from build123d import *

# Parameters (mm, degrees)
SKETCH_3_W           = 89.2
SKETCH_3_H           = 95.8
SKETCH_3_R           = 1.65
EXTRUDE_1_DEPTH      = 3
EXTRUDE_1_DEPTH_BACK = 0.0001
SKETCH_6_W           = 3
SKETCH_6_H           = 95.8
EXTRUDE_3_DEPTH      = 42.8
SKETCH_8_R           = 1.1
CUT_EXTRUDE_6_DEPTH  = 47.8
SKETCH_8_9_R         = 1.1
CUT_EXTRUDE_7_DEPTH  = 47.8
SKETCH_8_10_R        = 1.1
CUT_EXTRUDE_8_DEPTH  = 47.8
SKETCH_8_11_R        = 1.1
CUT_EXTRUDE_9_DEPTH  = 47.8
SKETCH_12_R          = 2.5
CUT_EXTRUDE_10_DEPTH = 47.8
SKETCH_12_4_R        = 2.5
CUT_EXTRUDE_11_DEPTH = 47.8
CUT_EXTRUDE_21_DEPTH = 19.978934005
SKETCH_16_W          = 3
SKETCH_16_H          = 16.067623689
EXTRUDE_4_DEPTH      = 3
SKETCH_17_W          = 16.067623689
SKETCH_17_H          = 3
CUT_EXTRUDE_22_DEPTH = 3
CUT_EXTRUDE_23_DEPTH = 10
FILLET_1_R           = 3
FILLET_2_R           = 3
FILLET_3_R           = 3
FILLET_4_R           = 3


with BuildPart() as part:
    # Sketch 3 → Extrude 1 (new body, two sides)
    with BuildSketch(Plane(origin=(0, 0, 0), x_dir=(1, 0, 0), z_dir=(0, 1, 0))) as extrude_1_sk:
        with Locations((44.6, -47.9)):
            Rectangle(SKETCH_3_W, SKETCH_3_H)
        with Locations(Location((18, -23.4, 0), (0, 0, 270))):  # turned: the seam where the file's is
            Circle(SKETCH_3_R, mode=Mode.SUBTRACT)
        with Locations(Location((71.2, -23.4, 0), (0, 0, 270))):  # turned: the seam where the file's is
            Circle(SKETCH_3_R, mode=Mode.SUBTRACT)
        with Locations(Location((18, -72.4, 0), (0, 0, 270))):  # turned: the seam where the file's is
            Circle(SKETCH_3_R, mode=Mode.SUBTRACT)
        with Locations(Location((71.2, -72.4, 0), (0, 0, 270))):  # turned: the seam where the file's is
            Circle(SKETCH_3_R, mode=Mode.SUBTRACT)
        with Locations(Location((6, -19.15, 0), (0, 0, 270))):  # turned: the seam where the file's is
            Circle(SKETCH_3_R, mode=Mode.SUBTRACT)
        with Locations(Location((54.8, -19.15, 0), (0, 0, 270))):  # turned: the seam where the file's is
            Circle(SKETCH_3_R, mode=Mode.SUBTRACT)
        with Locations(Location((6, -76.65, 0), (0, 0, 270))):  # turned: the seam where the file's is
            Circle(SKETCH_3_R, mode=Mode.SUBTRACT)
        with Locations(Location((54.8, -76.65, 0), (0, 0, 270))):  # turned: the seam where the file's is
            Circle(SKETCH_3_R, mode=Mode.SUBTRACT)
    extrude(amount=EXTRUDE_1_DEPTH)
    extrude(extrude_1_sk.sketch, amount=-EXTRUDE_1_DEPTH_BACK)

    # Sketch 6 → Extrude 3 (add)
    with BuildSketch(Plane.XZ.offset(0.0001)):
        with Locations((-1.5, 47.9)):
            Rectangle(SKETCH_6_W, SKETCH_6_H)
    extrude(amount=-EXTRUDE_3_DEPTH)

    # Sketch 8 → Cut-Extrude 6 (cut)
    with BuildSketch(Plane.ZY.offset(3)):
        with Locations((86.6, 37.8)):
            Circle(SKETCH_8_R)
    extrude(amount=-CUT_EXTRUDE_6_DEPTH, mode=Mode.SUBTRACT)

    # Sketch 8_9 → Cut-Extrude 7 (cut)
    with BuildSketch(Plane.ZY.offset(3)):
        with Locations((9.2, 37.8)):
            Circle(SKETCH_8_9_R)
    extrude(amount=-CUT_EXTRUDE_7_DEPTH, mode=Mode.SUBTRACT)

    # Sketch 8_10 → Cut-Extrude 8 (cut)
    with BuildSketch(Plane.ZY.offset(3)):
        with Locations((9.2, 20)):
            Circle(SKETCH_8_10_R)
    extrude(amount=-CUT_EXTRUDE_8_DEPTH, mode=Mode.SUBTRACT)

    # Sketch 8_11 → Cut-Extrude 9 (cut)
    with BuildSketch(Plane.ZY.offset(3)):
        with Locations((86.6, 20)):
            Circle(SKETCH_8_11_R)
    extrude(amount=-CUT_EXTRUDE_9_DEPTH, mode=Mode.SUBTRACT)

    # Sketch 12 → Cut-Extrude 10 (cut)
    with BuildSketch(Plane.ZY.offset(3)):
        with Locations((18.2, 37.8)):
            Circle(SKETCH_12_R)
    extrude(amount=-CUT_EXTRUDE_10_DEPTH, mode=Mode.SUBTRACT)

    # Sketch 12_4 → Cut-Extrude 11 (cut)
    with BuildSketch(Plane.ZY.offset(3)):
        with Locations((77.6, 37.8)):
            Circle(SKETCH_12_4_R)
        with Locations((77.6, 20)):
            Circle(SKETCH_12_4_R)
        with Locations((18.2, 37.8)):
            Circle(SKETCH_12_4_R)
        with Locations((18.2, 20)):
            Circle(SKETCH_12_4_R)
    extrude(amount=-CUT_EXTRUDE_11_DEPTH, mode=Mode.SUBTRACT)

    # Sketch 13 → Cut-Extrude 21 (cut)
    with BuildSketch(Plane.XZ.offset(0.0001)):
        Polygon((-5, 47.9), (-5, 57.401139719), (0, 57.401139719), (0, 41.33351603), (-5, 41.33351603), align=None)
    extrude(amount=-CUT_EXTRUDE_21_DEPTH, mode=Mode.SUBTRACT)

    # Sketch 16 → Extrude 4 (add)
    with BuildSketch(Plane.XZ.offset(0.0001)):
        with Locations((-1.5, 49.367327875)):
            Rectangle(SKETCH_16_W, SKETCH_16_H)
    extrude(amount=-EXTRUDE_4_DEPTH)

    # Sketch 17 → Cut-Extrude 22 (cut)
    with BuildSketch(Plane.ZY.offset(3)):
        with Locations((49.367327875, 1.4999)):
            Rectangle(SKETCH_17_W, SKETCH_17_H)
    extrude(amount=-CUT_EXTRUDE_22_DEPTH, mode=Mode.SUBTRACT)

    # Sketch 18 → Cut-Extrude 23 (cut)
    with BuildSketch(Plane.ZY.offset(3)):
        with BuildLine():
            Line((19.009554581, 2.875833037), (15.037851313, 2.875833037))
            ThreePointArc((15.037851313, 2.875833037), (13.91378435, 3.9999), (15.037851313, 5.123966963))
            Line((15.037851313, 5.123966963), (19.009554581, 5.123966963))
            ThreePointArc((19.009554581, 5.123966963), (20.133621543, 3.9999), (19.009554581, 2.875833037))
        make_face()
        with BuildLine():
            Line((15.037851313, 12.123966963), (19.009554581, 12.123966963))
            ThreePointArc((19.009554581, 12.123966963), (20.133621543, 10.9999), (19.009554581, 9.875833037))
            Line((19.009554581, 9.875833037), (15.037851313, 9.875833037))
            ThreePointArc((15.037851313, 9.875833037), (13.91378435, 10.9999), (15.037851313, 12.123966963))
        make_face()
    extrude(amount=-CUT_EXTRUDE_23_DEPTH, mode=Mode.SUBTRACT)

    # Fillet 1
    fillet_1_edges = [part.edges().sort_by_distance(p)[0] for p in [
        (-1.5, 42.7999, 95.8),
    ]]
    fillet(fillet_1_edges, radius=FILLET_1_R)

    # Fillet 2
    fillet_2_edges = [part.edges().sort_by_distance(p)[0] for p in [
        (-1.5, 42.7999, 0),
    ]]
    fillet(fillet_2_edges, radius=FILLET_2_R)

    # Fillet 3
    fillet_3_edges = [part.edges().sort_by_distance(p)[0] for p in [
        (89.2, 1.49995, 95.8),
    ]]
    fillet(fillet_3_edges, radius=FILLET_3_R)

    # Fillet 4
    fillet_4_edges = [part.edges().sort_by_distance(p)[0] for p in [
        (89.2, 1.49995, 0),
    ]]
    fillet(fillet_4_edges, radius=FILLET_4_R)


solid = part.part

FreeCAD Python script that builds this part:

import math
import FreeCAD as App
import Part
import Sketcher

V = App.Vector


def edges_at(feature, points):
    """Names of the edges that pass closest to the given points."""
    edges = feature.Shape.Edges
    near = lambda p: min(range(len(edges)), key=lambda i: edges[i].distToShape(Part.Vertex(*p))[0])
    return sorted({f"Edge{near(p) + 1}" for p in points})


def add_polygon(sketch, points):
    """Adds a closed chain of lines whose ends are joined by coincident constraints."""
    first, n = sketch.GeometryCount, len(points)
    for a, b in zip(points, points[1:] + points[:1]):
        sketch.addGeometry(Part.LineSegment(App.Vector(*a, 0), App.Vector(*b, 0)), False)
    for i in range(n):
        sketch.addConstraint(Sketcher.Constraint("Coincident", first + i, 2, first + (i + 1) % n, 1))

doc = App.newDocument("Part")
body = doc.addObject("PartDesign::Body", "Body")

# Sketch on XZ plane
sketch1 = body.newObject("Sketcher::SketchObject", "Sketch")
sketch1.AttachmentSupport = (doc.getObject("XZ_Plane"), [""])
sketch1.MapMode = "FlatFace"
add_polygon(sketch1, [(0, 0), (0, 95.8), (89.2, 95.8), (89.2, 0)])  # lines 0-3
sketch1.addGeometry(Part.Circle(V(6, 76.65, 0), V(0, 0, 1), 1.65), False)  # 4
sketch1.addGeometry(Part.Circle(V(18, 72.4, 0), V(0, 0, 1), 1.65), False)  # 5
sketch1.addGeometry(Part.Circle(V(54.8, 76.65, 0), V(0, 0, 1), 1.65), False)  # 6
sketch1.addGeometry(Part.Circle(V(71.2, 72.4, 0), V(0, 0, 1), 1.65), False)  # 7
sketch1.addGeometry(Part.Circle(V(6, 19.15, 0), V(0, 0, 1), 1.65), False)  # 8
sketch1.addGeometry(Part.Circle(V(18, 23.4, 0), V(0, 0, 1), 1.65), False)  # 9
sketch1.addGeometry(Part.Circle(V(54.8, 19.15, 0), V(0, 0, 1), 1.65), False)  # 10
sketch1.addGeometry(Part.Circle(V(71.2, 23.4, 0), V(0, 0, 1), 1.65), False)  # 11
sketch1.addConstraint(Sketcher.Constraint("Vertical", 0))
sketch1.addConstraint(Sketcher.Constraint("Horizontal", 1))
sketch1.addConstraint(Sketcher.Constraint("Vertical", 2))
sketch1.addConstraint(Sketcher.Constraint("Horizontal", 3))
sketch1.addConstraint(Sketcher.Constraint("Coincident", 3, 2, -1, 1))
sketch1.addConstraint(Sketcher.Constraint("Equal", 4, 5))
sketch1.addConstraint(Sketcher.Constraint("Equal", 5, 6))
sketch1.addConstraint(Sketcher.Constraint("Equal", 6, 7))
sketch1.addConstraint(Sketcher.Constraint("Equal", 7, 8))
sketch1.addConstraint(Sketcher.Constraint("Equal", 8, 9))
sketch1.addConstraint(Sketcher.Constraint("Equal", 9, 10))
sketch1.addConstraint(Sketcher.Constraint("Equal", 10, 11))
sketch1.addConstraint(Sketcher.Constraint("Horizontal", 4, 3, 6, 3))
sketch1.addConstraint(Sketcher.Constraint("Horizontal", 5, 3, 7, 3))
sketch1.addConstraint(Sketcher.Constraint("Horizontal", 8, 3, 10, 3))
sketch1.addConstraint(Sketcher.Constraint("Horizontal", 9, 3, 11, 3))
sketch1.addConstraint(Sketcher.Constraint("Vertical", 4, 3, 8, 3))
sketch1.addConstraint(Sketcher.Constraint("Vertical", 5, 3, 9, 3))
sketch1.addConstraint(Sketcher.Constraint("Vertical", 6, 3, 10, 3))
sketch1.addConstraint(Sketcher.Constraint("Vertical", 7, 3, 11, 3))
sketch1.addConstraint(Sketcher.Constraint("Diameter", 4, 3.3))
sketch1.addConstraint(Sketcher.Constraint("DistanceX", 1, 1, 1, 2, 89.2))
sketch1.addConstraint(Sketcher.Constraint("DistanceY", 0, 1, 0, 2, 95.8))
sketch1.addConstraint(Sketcher.Constraint("DistanceX", -1, 1, 4, 3, 6.0))
sketch1.addConstraint(Sketcher.Constraint("DistanceX", -1, 1, 5, 3, 18.0))
sketch1.addConstraint(Sketcher.Constraint("DistanceY", 9, 3, 5, 3, 49.0))
sketch1.addConstraint(Sketcher.Constraint("DistanceX", 7, 3, 1, 2, 18.0))
sketch1.addConstraint(Sketcher.Constraint("DistanceY", -1, 1, 5, 3, 72.4))
sketch1.addConstraint(Sketcher.Constraint("DistanceX", -1, 1, 6, 3, 54.8))
sketch1.addConstraint(Sketcher.Constraint("DistanceY", 8, 3, 4, 3, 57.5))
sketch1.addConstraint(Sketcher.Constraint("DistanceY", -1, 1, 4, 3, 76.65))
pad1 = body.newObject("PartDesign::Pad", "Pad")
pad1.Profile = sketch1
pad1.Type = "TwoLengths"
pad1.Length = 3
pad1.Length2 = 0.0001
pad1.Reversed = True

# Sketch on XZ plane
sketch2 = body.newObject("Sketcher::SketchObject", "Sketch001")
sketch2.AttachmentSupport = (doc.getObject("XZ_Plane"), [""])
sketch2.MapMode = "FlatFace"
sketch2.AttachmentOffset = App.Placement(V(0, 0, 0.0001), App.Rotation())
add_polygon(sketch2, [(-3, 95.8), (-3, 0), (0, 0), (0, 95.8)])  # lines 0-3
sketch2.addConstraint(Sketcher.Constraint("Vertical", 0))
sketch2.addConstraint(Sketcher.Constraint("Horizontal", 1))
sketch2.addConstraint(Sketcher.Constraint("Vertical", 2))
sketch2.addConstraint(Sketcher.Constraint("Horizontal", 3))
sketch2.addConstraint(Sketcher.Constraint("Coincident", 1, 2, -1, 1))
sketch2.addConstraint(Sketcher.Constraint("DistanceX", 1, 1, 1, 2, 3.0))
sketch2.addConstraint(Sketcher.Constraint("DistanceY", 0, 2, 0, 1, 95.8))
pad2 = body.newObject("PartDesign::Pad", "Pad001")
pad2.Profile = sketch2
pad2.Length = 42.8
pad2.Reversed = True

# Sketch on YZ plane
sketch3 = body.newObject("Sketcher::SketchObject", "Sketch002")
sketch3.AttachmentSupport = (doc.getObject("YZ_Plane"), [""])
sketch3.MapMode = "FlatFace"
sketch3.AttachmentOffset = App.Placement(V(0, 0, -3), App.Rotation())
sketch3.addGeometry(Part.Circle(V(37.8, 86.6, 0), V(0, 0, 1), 1.1), False)
sketch3.addConstraint(Sketcher.Constraint("Diameter", 0, 2.2))
sketch3.addConstraint(Sketcher.Constraint("DistanceX", -1, 1, 0, 3, 37.8))
sketch3.addConstraint(Sketcher.Constraint("DistanceY", -1, 1, 0, 3, 86.6))
pocket1 = body.newObject("PartDesign::Pocket", "Pocket")
pocket1.Profile = sketch3
pocket1.Length = 47.8
pocket1.Reversed = True

# Sketch on YZ plane
sketch4 = body.newObject("Sketcher::SketchObject", "Sketch003")
sketch4.AttachmentSupport = (doc.getObject("YZ_Plane"), [""])
sketch4.MapMode = "FlatFace"
sketch4.AttachmentOffset = App.Placement(V(0, 0, -3), App.Rotation())
sketch4.addGeometry(Part.Circle(V(37.8, 9.2, 0), V(0, 0, 1), 1.1), False)
sketch4.addConstraint(Sketcher.Constraint("Diameter", 0, 2.2))
sketch4.addConstraint(Sketcher.Constraint("DistanceX", -1, 1, 0, 3, 37.8))
sketch4.addConstraint(Sketcher.Constraint("DistanceY", -1, 1, 0, 3, 9.2))
pocket2 = body.newObject("PartDesign::Pocket", "Pocket001")
pocket2.Profile = sketch4
pocket2.Length = 47.8
pocket2.Reversed = True

# Sketch on YZ plane
sketch5 = body.newObject("Sketcher::SketchObject", "Sketch004")
sketch5.AttachmentSupport = (doc.getObject("YZ_Plane"), [""])
sketch5.MapMode = "FlatFace"
sketch5.AttachmentOffset = App.Placement(V(0, 0, -3), App.Rotation())
sketch5.addGeometry(Part.Circle(V(20, 9.2, 0), V(0, 0, 1), 1.1), False)
sketch5.addConstraint(Sketcher.Constraint("Diameter", 0, 2.2))
sketch5.addConstraint(Sketcher.Constraint("DistanceX", -1, 1, 0, 3, 20.0))
sketch5.addConstraint(Sketcher.Constraint("DistanceY", -1, 1, 0, 3, 9.2))
pocket3 = body.newObject("PartDesign::Pocket", "Pocket002")
pocket3.Profile = sketch5
pocket3.Length = 47.8
pocket3.Reversed = True

# Sketch on YZ plane
sketch6 = body.newObject("Sketcher::SketchObject", "Sketch005")
sketch6.AttachmentSupport = (doc.getObject("YZ_Plane"), [""])
sketch6.MapMode = "FlatFace"
sketch6.AttachmentOffset = App.Placement(V(0, 0, -3), App.Rotation())
sketch6.addGeometry(Part.Circle(V(20, 86.6, 0), V(0, 0, 1), 1.1), False)
sketch6.addConstraint(Sketcher.Constraint("Diameter", 0, 2.2))
sketch6.addConstraint(Sketcher.Constraint("DistanceX", -1, 1, 0, 3, 20.0))
sketch6.addConstraint(Sketcher.Constraint("DistanceY", -1, 1, 0, 3, 86.6))
pocket4 = body.newObject("PartDesign::Pocket", "Pocket003")
pocket4.Profile = sketch6
pocket4.Length = 47.8
pocket4.Reversed = True

# Sketch on YZ plane
sketch7 = body.newObject("Sketcher::SketchObject", "Sketch006")
sketch7.AttachmentSupport = (doc.getObject("YZ_Plane"), [""])
sketch7.MapMode = "FlatFace"
sketch7.AttachmentOffset = App.Placement(V(0, 0, -3), App.Rotation())
sketch7.addGeometry(Part.Circle(V(37.8, 18.2, 0), V(0, 0, 1), 2.5), False)
sketch7.addConstraint(Sketcher.Constraint("Diameter", 0, 5.0))
sketch7.addConstraint(Sketcher.Constraint("DistanceX", -1, 1, 0, 3, 37.8))
sketch7.addConstraint(Sketcher.Constraint("DistanceY", -1, 1, 0, 3, 18.2))
pocket5 = body.newObject("PartDesign::Pocket", "Pocket004")
pocket5.Profile = sketch7
pocket5.Length = 47.8
pocket5.Reversed = True

# Sketch on YZ plane
sketch8 = body.newObject("Sketcher::SketchObject", "Sketch007")
sketch8.AttachmentSupport = (doc.getObject("YZ_Plane"), [""])
sketch8.MapMode = "FlatFace"
sketch8.AttachmentOffset = App.Placement(V(0, 0, -3), App.Rotation())
sketch8.addGeometry(Part.Circle(V(37.8, 77.6, 0), V(0, 0, 1), 2.5), False)
sketch8.addGeometry(Part.Circle(V(20, 77.6, 0), V(0, 0, 1), 2.5), False)
sketch8.addGeometry(Part.Circle(V(37.8, 18.2, 0), V(0, 0, 1), 2.5), False)
sketch8.addGeometry(Part.Circle(V(20, 18.2, 0), V(0, 0, 1), 2.5), False)
sketch8.addConstraint(Sketcher.Constraint("Equal", 0, 1))
sketch8.addConstraint(Sketcher.Constraint("Equal", 1, 2))
sketch8.addConstraint(Sketcher.Constraint("Equal", 2, 3))
sketch8.addConstraint(Sketcher.Constraint("Horizontal", 0, 3, 1, 3))
sketch8.addConstraint(Sketcher.Constraint("Horizontal", 2, 3, 3, 3))
sketch8.addConstraint(Sketcher.Constraint("Vertical", 0, 3, 2, 3))
sketch8.addConstraint(Sketcher.Constraint("Vertical", 1, 3, 3, 3))
sketch8.addConstraint(Sketcher.Constraint("Diameter", 0, 5.0))
sketch8.addConstraint(Sketcher.Constraint("DistanceX", -1, 1, 1, 3, 20.0))
sketch8.addConstraint(Sketcher.Constraint("DistanceX", -1, 1, 0, 3, 37.8))
sketch8.addConstraint(Sketcher.Constraint("DistanceY", -1, 1, 0, 3, 77.6))
sketch8.addConstraint(Sketcher.Constraint("DistanceY", -1, 1, 2, 3, 18.2))
pocket6 = body.newObject("PartDesign::Pocket", "Pocket005")
pocket6.Profile = sketch8
pocket6.Length = 47.8
pocket6.Reversed = True

# Sketch on XZ plane
sketch9 = body.newObject("Sketcher::SketchObject", "Sketch008")
sketch9.AttachmentSupport = (doc.getObject("XZ_Plane"), [""])
sketch9.MapMode = "FlatFace"
sketch9.AttachmentOffset = App.Placement(V(0, 0, 0.0001), App.Rotation())
add_polygon(sketch9, [(-5, 57.40114), (-5, 41.333516), (0, 41.333516), (0, 57.40114)])  # lines 0-3
sketch9.addConstraint(Sketcher.Constraint("Vertical", 0))
sketch9.addConstraint(Sketcher.Constraint("Horizontal", 1))
sketch9.addConstraint(Sketcher.Constraint("Vertical", 2))
sketch9.addConstraint(Sketcher.Constraint("Horizontal", 3))
sketch9.addConstraint(Sketcher.Constraint("PointOnObject", 1, 2, -2))
sketch9.addConstraint(Sketcher.Constraint("DistanceX", 1, 1, 1, 2, 5.0))
sketch9.addConstraint(Sketcher.Constraint("DistanceY", 0, 2, 0, 1, 16.067624))
sketch9.addConstraint(Sketcher.Constraint("DistanceY", -1, 1, 2, 2, 57.40114))
pocket7 = body.newObject("PartDesign::Pocket", "Pocket006")
pocket7.Profile = sketch9
pocket7.Length = 19.978934

# Sketch on XZ plane
sketch10 = body.newObject("Sketcher::SketchObject", "Sketch009")
sketch10.AttachmentSupport = (doc.getObject("XZ_Plane"), [""])
sketch10.MapMode = "FlatFace"
sketch10.AttachmentOffset = App.Placement(V(0, 0, 0.0001), App.Rotation())
add_polygon(sketch10, [(-3, 57.40114), (-3, 41.333516), (0, 41.333516), (0, 57.40114)])  # lines 0-3
sketch10.addConstraint(Sketcher.Constraint("Vertical", 0))
sketch10.addConstraint(Sketcher.Constraint("Horizontal", 1))
sketch10.addConstraint(Sketcher.Constraint("Vertical", 2))
sketch10.addConstraint(Sketcher.Constraint("Horizontal", 3))
sketch10.addConstraint(Sketcher.Constraint("PointOnObject", 1, 2, -2))
sketch10.addConstraint(Sketcher.Constraint("DistanceX", 1, 1, 1, 2, 3.0))
sketch10.addConstraint(Sketcher.Constraint("DistanceY", 0, 2, 0, 1, 16.067624))
sketch10.addConstraint(Sketcher.Constraint("DistanceY", -1, 1, 2, 2, 57.40114))
pad3 = body.newObject("PartDesign::Pad", "Pad002")
pad3.Profile = sketch10
pad3.Length = 3
pad3.Reversed = True

# Sketch on YZ plane
sketch11 = body.newObject("Sketcher::SketchObject", "Sketch010")
sketch11.AttachmentSupport = (doc.getObject("YZ_Plane"), [""])
sketch11.MapMode = "FlatFace"
sketch11.AttachmentOffset = App.Placement(V(0, 0, -3), App.Rotation())
add_polygon(sketch11, [(2.9999, 41.333516), (-0.0001, 41.333516), (-0.0001, 57.40114), (2.9999, 57.40114)])  # lines 0-3
sketch11.addConstraint(Sketcher.Constraint("Horizontal", 0))
sketch11.addConstraint(Sketcher.Constraint("Vertical", 1))
sketch11.addConstraint(Sketcher.Constraint("Horizontal", 2))
sketch11.addConstraint(Sketcher.Constraint("Vertical", 3))
sketch11.addConstraint(Sketcher.Constraint("DistanceX", 0, 2, 0, 1, 3.0))
sketch11.addConstraint(Sketcher.Constraint("DistanceX", 0, 2, -1, 1, 0.0001))
sketch11.addConstraint(Sketcher.Constraint("DistanceY", 1, 1, 1, 2, 16.067624))
sketch11.addConstraint(Sketcher.Constraint("DistanceY", -1, 1, 1, 2, 57.40114))
pocket8 = body.newObject("PartDesign::Pocket", "Pocket007")
pocket8.Profile = sketch11
pocket8.Length = 3
pocket8.Reversed = True

# Sketch on YZ plane
sketch12 = body.newObject("Sketcher::SketchObject", "Sketch011")
sketch12.AttachmentSupport = (doc.getObject("YZ_Plane"), [""])
sketch12.MapMode = "FlatFace"
sketch12.AttachmentOffset = App.Placement(V(0, 0, -3), App.Rotation())
sketch12.addGeometry(Part.LineSegment(V(2.875833, 15.037851, 0), V(2.875833, 19.009555, 0)), False)
sketch12.addGeometry(Part.ArcOfCircle(Part.Circle(V(3.9999, 19.009555, 0), V(0, 0, 1), 1.124067), math.radians(0), math.radians(180)), False)
sketch12.addGeometry(Part.LineSegment(V(5.123967, 19.009555, 0), V(5.123967, 15.037851, 0)), False)
sketch12.addGeometry(Part.ArcOfCircle(Part.Circle(V(3.9999, 15.037851, 0), V(0, 0, 1), 1.124067), math.radians(180), math.radians(360)), False)
sketch12.addGeometry(Part.LineSegment(V(12.123967, 19.009555, 0), V(12.123967, 15.037851, 0)), False)
sketch12.addGeometry(Part.ArcOfCircle(Part.Circle(V(10.9999, 15.037851, 0), V(0, 0, 1), 1.124067), math.radians(180), math.radians(360)), False)
sketch12.addGeometry(Part.LineSegment(V(9.875833, 15.037851, 0), V(9.875833, 19.009555, 0)), False)
sketch12.addGeometry(Part.ArcOfCircle(Part.Circle(V(10.9999, 19.009555, 0), V(0, 0, 1), 1.124067), math.radians(0), math.radians(180)), False)
sketch12.addConstraint(Sketcher.Constraint("Tangent", 0, 2, 1, 2))
sketch12.addConstraint(Sketcher.Constraint("Tangent", 1, 1, 2, 1))
sketch12.addConstraint(Sketcher.Constraint("Tangent", 2, 2, 3, 2))
sketch12.addConstraint(Sketcher.Constraint("Tangent", 3, 1, 0, 1))
sketch12.addConstraint(Sketcher.Constraint("Tangent", 4, 2, 5, 2))
sketch12.addConstraint(Sketcher.Constraint("Tangent", 5, 1, 6, 1))
sketch12.addConstraint(Sketcher.Constraint("Tangent", 6, 2, 7, 2))
sketch12.addConstraint(Sketcher.Constraint("Tangent", 7, 1, 4, 1))
sketch12.addConstraint(Sketcher.Constraint("Vertical", 0))
sketch12.addConstraint(Sketcher.Constraint("Vertical", 2))
sketch12.addConstraint(Sketcher.Constraint("Vertical", 4))
sketch12.addConstraint(Sketcher.Constraint("Vertical", 6))
sketch12.addConstraint(Sketcher.Constraint("Equal", 3, 5))
sketch12.addConstraint(Sketcher.Constraint("Horizontal", 3, 3, 5, 3))
sketch12.addConstraint(Sketcher.Constraint("Horizontal", 1, 3, 7, 3))
sketch12.addConstraint(Sketcher.Constraint("DistanceX", 3, 3, 5, 3, 7.0))
sketch12.addConstraint(Sketcher.Constraint("Radius", 1, 1.124067))
sketch12.addConstraint(Sketcher.Constraint("DistanceX", -1, 1, 1, 3, 3.9999))
sketch12.addConstraint(Sketcher.Constraint("DistanceY", 0, 1, 0, 2, 3.971703))
sketch12.addConstraint(Sketcher.Constraint("DistanceY", -1, 1, 3, 3, 15.037851))
pocket9 = body.newObject("PartDesign::Pocket", "Pocket008")
pocket9.Profile = sketch12
pocket9.Length = 10
pocket9.Reversed = True
doc.recompute()

fillet = body.newObject("PartDesign::Fillet", "Fillet")
fillet.Base = (pocket9, edges_at(pocket9, [(-1.5, 42.8, 95.8)]))
fillet.Radius = 3
doc.recompute()

fillet2 = body.newObject("PartDesign::Fillet", "Fillet001")
fillet2.Base = (fillet, edges_at(fillet, [(-1.5, 42.8, 0)]))
fillet2.Radius = 3
doc.recompute()

fillet3 = body.newObject("PartDesign::Fillet", "Fillet002")
fillet3.Base = (fillet2, edges_at(fillet2, [(89.2, 1.5, 95.8)]))
fillet3.Radius = 3
doc.recompute()

fillet4 = body.newObject("PartDesign::Fillet", "Fillet003")
fillet4.Base = (fillet3, edges_at(fillet3, [(89.2, 1.5, 0)]))
fillet4.Radius = 3

doc.recompute()
